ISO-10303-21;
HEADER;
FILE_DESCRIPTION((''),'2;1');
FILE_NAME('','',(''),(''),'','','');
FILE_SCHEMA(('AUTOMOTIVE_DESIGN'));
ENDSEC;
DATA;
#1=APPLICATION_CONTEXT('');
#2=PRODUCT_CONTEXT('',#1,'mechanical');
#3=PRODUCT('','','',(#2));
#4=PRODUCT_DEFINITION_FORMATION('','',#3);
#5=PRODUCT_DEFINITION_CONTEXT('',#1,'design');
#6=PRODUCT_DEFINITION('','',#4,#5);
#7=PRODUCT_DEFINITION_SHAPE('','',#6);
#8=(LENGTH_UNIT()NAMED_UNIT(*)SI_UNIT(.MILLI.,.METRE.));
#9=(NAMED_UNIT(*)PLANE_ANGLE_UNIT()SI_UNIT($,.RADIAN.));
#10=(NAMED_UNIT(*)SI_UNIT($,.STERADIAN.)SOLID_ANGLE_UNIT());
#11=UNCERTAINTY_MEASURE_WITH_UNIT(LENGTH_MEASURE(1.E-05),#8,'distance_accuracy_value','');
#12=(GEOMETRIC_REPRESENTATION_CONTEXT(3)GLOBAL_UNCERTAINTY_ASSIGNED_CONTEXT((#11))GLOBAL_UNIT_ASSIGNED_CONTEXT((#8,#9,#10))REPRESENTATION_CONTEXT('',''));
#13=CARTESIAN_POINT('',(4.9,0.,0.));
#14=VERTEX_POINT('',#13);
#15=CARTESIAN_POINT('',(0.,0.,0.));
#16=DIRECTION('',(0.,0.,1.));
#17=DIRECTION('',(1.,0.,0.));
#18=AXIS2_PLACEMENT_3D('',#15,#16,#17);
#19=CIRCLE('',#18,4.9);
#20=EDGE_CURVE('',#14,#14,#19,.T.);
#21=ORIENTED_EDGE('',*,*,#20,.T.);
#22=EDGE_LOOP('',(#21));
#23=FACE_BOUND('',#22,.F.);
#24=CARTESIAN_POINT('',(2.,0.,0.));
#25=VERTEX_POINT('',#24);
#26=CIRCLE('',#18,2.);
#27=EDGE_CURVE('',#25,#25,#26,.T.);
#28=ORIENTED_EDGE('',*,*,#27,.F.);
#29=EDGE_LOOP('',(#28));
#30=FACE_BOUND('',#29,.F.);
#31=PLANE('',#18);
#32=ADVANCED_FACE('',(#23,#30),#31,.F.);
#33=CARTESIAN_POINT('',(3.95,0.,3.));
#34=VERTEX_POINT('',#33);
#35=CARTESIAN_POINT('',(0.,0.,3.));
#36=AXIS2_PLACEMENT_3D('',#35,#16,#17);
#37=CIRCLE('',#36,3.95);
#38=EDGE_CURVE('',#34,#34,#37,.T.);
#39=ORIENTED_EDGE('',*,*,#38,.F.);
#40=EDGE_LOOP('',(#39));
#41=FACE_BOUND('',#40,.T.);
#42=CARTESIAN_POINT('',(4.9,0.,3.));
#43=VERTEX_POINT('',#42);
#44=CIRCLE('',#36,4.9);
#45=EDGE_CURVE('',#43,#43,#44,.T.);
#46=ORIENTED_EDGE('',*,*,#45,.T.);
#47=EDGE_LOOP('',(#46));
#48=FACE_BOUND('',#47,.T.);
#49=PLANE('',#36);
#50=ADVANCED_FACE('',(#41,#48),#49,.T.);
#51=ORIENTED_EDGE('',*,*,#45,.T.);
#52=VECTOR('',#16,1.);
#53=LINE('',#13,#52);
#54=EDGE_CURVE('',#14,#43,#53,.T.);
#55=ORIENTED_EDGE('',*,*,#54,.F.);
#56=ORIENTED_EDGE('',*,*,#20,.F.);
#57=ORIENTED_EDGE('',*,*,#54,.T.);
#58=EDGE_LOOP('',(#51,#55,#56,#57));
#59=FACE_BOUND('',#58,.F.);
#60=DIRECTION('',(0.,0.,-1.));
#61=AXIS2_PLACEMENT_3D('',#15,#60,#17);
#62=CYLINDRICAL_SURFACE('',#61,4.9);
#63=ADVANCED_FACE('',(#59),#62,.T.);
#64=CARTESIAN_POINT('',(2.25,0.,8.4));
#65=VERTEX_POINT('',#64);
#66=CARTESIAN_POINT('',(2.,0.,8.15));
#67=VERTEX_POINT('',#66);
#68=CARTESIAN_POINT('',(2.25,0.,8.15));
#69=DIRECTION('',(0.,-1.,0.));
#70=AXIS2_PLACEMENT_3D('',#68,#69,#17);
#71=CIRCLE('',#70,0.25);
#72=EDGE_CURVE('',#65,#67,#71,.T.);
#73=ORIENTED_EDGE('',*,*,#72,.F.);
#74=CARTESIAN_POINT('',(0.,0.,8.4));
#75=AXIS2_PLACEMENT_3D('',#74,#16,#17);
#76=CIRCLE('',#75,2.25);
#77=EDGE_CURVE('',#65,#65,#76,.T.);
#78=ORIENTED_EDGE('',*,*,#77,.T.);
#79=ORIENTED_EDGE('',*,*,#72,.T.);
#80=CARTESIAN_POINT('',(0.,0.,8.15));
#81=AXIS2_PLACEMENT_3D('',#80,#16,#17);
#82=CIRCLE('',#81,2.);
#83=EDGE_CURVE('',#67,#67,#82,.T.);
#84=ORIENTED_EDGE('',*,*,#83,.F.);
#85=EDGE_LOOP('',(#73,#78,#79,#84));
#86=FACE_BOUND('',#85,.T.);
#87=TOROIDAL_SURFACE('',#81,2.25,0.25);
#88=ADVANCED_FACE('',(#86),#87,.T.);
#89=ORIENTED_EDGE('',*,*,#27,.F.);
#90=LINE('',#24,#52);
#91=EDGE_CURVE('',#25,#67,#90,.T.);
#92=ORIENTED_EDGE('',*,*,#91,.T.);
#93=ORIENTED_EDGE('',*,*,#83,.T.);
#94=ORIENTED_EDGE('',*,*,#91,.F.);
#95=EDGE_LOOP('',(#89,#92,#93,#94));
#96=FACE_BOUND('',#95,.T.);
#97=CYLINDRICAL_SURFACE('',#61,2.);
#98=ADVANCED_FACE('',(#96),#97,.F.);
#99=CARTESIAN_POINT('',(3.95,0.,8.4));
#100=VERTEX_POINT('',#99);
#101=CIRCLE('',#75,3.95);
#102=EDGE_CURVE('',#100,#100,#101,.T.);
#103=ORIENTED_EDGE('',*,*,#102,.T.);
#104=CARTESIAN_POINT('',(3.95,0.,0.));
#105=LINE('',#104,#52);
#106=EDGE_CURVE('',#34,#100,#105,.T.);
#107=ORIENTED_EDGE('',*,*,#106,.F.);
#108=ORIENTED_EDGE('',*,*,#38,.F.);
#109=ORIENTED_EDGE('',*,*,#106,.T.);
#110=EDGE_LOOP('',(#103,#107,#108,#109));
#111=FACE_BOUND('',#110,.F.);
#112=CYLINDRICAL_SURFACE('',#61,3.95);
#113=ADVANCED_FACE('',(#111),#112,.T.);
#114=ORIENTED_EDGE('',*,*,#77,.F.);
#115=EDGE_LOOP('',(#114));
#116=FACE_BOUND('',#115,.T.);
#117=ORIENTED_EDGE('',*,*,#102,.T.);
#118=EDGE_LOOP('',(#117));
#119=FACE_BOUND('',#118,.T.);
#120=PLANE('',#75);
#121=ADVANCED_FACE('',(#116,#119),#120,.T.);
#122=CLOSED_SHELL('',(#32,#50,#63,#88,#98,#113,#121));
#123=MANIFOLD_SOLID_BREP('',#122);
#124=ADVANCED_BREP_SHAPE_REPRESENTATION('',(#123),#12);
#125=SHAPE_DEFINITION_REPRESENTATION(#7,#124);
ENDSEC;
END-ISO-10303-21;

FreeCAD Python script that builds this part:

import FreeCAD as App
import Part
import Sketcher
from FreeCAD import Vector


def edges_at(feature, points):
    """Names of the edges that pass closest to the given points."""
    edges = feature.Shape.Edges
    near = lambda p: min(range(len(edges)), key=lambda i: edges[i].distToShape(Part.Vertex(*p))[0])
    return sorted({f"Edge{near(p) + 1}" for p in points})

doc = App.newDocument("Part")
body = doc.addObject("PartDesign::Body", "Body")

# Sketch on XY plane
sketch1 = body.newObject("Sketcher::SketchObject", "Sketch")
sketch1.AttachmentSupport = (doc.getObject("XY_Plane"), [""])
sketch1.MapMode = "FlatFace"
sketch1.addGeometry([
    Part.Circle(Vector(0, 0, 0), Vector(0, 0, 1), 4.9),
    Part.Circle(Vector(0, 0, 0), Vector(0, 0, 1), 4),
], False)
sketch1.addConstraint([
    Sketcher.Constraint("Coincident", 0, 3, -1, 1),
    Sketcher.Constraint("Coincident", 1, 3, -1, 1),
    Sketcher.Constraint("Diameter", 0, 9.8),
    Sketcher.Constraint("Diameter", 1, 7.9),
])
pad1 = body.newObject("PartDesign::Pad", "Pad")
pad1.Profile = sketch1
pad1.Length = 3

# Sketch on XY plane
sketch2 = body.newObject("Sketcher::SketchObject", "Sketch001")
sketch2.AttachmentSupport = (doc.getObject("XY_Plane"), [""])
sketch2.MapMode = "FlatFace"
sketch2.addGeometry([
    Part.Circle(Vector(0, 0, 0), Vector(0, 0, 1), 4),
    Part.Circle(Vector(0, 0, 0), Vector(0, 0, 1), 2),
], False)
sketch2.addConstraint([
    Sketcher.Constraint("Coincident", 0, 3, -1, 1),
    Sketcher.Constraint("Coincident", 1, 3, -1, 1),
    Sketcher.Constraint("Diameter", 1, 4.0),
    Sketcher.Constraint("Diameter", 0, 7.9),
])
pad2 = body.newObject("PartDesign::Pad", "Pad001")
pad2.Profile = sketch2
pad2.Length = 8.4
doc.recompute()

fillet = body.newObject("PartDesign::Fillet", "Fillet")
fillet.Base = (pad2, edges_at(pad2, [(-2, 0, 8.4)]))
fillet.Radius = 0.25

doc.recompute()
